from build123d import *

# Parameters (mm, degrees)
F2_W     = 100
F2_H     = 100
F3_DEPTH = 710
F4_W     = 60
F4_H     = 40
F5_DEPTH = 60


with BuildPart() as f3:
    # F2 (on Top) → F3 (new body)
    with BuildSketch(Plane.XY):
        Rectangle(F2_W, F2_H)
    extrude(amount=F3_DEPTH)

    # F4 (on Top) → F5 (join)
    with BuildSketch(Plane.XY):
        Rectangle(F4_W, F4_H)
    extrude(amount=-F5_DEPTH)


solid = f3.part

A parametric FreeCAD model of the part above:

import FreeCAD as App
import Part
import Sketcher

doc = App.newDocument("Part")
params = doc.addObject("Spreadsheet::Sheet", "Params")
for row, (alias, value) in enumerate([
    ("sketch1_width", "100 mm"),
    ("pad1_length", "710 mm"),
    ("sketch2_width", "60 mm"),
    ("sketch2_height", "40 mm"),
    ("pad2_length", "60 mm"),
], start=1):
    params.set(f"A{row}", alias)
    params.set(f"B{row}", "=" + value)
    params.setAlias(f"B{row}", alias)

body = doc.addObject("PartDesign::Body", "Body")

sketch1 = body.newObject("Sketcher::SketchObject", "Sketch")
sketch1.AttachmentSupport = (doc.getObject("XY_Plane"), [""])
sketch1.MapMode = "FlatFace"
sketch1.addGeometry(Part.LineSegment(App.Vector(-50, 50, 0), App.Vector(-50, -50, 0)), False)
sketch1.addGeometry(Part.LineSegment(App.Vector(-50, -50, 0), App.Vector(50, -50, 0)), False)
sketch1.addGeometry(Part.LineSegment(App.Vector(50, -50, 0), App.Vector(50, 50, 0)), False)
sketch1.addGeometry(Part.LineSegment(App.Vector(50, 50, 0), App.Vector(-50, 50, 0)), False)
sketch1.addConstraint(Sketcher.Constraint("Coincident", 0, 2, 1, 1))
sketch1.addConstraint(Sketcher.Constraint("Coincident", 1, 2, 2, 1))
sketch1.addConstraint(Sketcher.Constraint("Coincident", 2, 2, 3, 1))
sketch1.addConstraint(Sketcher.Constraint("Coincident", 3, 2, 0, 1))
sketch1.addConstraint(Sketcher.Constraint("Vertical", 0))
sketch1.addConstraint(Sketcher.Constraint("Horizontal", 1))
sketch1.addConstraint(Sketcher.Constraint("Vertical", 2))
sketch1.addConstraint(Sketcher.Constraint("Horizontal", 3))
sketch1.addConstraint(Sketcher.Constraint("Symmetric", 0, 2, 2, 2, -1, 1))
sketch1.addConstraint(Sketcher.Constraint("Equal", 3, 0))
sketch1.addConstraint(Sketcher.Constraint("DistanceX", 1, 1, 1, 2, 100.0))
sketch1.setExpression("Constraints[10]", "Params.sketch1_width")
pad1 = body.newObject("PartDesign::Pad", "Pad")
pad1.Profile = sketch1
pad1.setExpression("Length", "Params.pad1_length")

sketch2 = body.newObject("Sketcher::SketchObject", "Sketch001")
sketch2.AttachmentSupport = (doc.getObject("XY_Plane"), [""])
sketch2.MapMode = "FlatFace"
sketch2.addGeometry(Part.LineSegment(App.Vector(-30, 20, 0), App.Vector(-30, -20, 0)), False)
sketch2.addGeometry(Part.LineSegment(App.Vector(-30, -20, 0), App.Vector(30, -20, 0)), False)
sketch2.addGeometry(Part.LineSegment(App.Vector(30, -20, 0), App.Vector(30, 20, 0)), False)
sketch2.addGeometry(Part.LineSegment(App.Vector(30, 20, 0), App.Vector(-30, 20, 0)), False)
sketch2.addConstraint(Sketcher.Constraint("Coincident", 0, 2, 1, 1))
sketch2.addConstraint(Sketcher.Constraint("Coincident", 1, 2, 2, 1))
sketch2.addConstraint(Sketcher.Constraint("Coincident", 2, 2, 3, 1))
sketch2.addConstraint(Sketcher.Constraint("Coincident", 3, 2, 0, 1))
sketch2.addConstraint(Sketcher.Constraint("Vertical", 0))
sketch2.addConstraint(Sketcher.Constraint("Horizontal", 1))
sketch2.addConstraint(Sketcher.Constraint("Vertical", 2))
sketch2.addConstraint(Sketcher.Constraint("Horizontal", 3))
sketch2.addConstraint(Sketcher.Constraint("Symmetric", 0, 2, 2, 2, -1, 1))
sketch2.addConstraint(Sketcher.Constraint("DistanceX", 1, 1, 1, 2, 60.0))
sketch2.addConstraint(Sketcher.Constraint("DistanceY", 0, 2, 0, 1, 40.0))
sketch2.setExpression("Constraints[9]", "Params.sketch2_width")
sketch2.setExpression("Constraints[10]", "Params.sketch2_height")
pad2 = body.newObject("PartDesign::Pad", "Pad001")
pad2.Profile = sketch2
pad2.setExpression("Length", "Params.pad2_length")
pad2.Reversed = True

doc.recompute()
